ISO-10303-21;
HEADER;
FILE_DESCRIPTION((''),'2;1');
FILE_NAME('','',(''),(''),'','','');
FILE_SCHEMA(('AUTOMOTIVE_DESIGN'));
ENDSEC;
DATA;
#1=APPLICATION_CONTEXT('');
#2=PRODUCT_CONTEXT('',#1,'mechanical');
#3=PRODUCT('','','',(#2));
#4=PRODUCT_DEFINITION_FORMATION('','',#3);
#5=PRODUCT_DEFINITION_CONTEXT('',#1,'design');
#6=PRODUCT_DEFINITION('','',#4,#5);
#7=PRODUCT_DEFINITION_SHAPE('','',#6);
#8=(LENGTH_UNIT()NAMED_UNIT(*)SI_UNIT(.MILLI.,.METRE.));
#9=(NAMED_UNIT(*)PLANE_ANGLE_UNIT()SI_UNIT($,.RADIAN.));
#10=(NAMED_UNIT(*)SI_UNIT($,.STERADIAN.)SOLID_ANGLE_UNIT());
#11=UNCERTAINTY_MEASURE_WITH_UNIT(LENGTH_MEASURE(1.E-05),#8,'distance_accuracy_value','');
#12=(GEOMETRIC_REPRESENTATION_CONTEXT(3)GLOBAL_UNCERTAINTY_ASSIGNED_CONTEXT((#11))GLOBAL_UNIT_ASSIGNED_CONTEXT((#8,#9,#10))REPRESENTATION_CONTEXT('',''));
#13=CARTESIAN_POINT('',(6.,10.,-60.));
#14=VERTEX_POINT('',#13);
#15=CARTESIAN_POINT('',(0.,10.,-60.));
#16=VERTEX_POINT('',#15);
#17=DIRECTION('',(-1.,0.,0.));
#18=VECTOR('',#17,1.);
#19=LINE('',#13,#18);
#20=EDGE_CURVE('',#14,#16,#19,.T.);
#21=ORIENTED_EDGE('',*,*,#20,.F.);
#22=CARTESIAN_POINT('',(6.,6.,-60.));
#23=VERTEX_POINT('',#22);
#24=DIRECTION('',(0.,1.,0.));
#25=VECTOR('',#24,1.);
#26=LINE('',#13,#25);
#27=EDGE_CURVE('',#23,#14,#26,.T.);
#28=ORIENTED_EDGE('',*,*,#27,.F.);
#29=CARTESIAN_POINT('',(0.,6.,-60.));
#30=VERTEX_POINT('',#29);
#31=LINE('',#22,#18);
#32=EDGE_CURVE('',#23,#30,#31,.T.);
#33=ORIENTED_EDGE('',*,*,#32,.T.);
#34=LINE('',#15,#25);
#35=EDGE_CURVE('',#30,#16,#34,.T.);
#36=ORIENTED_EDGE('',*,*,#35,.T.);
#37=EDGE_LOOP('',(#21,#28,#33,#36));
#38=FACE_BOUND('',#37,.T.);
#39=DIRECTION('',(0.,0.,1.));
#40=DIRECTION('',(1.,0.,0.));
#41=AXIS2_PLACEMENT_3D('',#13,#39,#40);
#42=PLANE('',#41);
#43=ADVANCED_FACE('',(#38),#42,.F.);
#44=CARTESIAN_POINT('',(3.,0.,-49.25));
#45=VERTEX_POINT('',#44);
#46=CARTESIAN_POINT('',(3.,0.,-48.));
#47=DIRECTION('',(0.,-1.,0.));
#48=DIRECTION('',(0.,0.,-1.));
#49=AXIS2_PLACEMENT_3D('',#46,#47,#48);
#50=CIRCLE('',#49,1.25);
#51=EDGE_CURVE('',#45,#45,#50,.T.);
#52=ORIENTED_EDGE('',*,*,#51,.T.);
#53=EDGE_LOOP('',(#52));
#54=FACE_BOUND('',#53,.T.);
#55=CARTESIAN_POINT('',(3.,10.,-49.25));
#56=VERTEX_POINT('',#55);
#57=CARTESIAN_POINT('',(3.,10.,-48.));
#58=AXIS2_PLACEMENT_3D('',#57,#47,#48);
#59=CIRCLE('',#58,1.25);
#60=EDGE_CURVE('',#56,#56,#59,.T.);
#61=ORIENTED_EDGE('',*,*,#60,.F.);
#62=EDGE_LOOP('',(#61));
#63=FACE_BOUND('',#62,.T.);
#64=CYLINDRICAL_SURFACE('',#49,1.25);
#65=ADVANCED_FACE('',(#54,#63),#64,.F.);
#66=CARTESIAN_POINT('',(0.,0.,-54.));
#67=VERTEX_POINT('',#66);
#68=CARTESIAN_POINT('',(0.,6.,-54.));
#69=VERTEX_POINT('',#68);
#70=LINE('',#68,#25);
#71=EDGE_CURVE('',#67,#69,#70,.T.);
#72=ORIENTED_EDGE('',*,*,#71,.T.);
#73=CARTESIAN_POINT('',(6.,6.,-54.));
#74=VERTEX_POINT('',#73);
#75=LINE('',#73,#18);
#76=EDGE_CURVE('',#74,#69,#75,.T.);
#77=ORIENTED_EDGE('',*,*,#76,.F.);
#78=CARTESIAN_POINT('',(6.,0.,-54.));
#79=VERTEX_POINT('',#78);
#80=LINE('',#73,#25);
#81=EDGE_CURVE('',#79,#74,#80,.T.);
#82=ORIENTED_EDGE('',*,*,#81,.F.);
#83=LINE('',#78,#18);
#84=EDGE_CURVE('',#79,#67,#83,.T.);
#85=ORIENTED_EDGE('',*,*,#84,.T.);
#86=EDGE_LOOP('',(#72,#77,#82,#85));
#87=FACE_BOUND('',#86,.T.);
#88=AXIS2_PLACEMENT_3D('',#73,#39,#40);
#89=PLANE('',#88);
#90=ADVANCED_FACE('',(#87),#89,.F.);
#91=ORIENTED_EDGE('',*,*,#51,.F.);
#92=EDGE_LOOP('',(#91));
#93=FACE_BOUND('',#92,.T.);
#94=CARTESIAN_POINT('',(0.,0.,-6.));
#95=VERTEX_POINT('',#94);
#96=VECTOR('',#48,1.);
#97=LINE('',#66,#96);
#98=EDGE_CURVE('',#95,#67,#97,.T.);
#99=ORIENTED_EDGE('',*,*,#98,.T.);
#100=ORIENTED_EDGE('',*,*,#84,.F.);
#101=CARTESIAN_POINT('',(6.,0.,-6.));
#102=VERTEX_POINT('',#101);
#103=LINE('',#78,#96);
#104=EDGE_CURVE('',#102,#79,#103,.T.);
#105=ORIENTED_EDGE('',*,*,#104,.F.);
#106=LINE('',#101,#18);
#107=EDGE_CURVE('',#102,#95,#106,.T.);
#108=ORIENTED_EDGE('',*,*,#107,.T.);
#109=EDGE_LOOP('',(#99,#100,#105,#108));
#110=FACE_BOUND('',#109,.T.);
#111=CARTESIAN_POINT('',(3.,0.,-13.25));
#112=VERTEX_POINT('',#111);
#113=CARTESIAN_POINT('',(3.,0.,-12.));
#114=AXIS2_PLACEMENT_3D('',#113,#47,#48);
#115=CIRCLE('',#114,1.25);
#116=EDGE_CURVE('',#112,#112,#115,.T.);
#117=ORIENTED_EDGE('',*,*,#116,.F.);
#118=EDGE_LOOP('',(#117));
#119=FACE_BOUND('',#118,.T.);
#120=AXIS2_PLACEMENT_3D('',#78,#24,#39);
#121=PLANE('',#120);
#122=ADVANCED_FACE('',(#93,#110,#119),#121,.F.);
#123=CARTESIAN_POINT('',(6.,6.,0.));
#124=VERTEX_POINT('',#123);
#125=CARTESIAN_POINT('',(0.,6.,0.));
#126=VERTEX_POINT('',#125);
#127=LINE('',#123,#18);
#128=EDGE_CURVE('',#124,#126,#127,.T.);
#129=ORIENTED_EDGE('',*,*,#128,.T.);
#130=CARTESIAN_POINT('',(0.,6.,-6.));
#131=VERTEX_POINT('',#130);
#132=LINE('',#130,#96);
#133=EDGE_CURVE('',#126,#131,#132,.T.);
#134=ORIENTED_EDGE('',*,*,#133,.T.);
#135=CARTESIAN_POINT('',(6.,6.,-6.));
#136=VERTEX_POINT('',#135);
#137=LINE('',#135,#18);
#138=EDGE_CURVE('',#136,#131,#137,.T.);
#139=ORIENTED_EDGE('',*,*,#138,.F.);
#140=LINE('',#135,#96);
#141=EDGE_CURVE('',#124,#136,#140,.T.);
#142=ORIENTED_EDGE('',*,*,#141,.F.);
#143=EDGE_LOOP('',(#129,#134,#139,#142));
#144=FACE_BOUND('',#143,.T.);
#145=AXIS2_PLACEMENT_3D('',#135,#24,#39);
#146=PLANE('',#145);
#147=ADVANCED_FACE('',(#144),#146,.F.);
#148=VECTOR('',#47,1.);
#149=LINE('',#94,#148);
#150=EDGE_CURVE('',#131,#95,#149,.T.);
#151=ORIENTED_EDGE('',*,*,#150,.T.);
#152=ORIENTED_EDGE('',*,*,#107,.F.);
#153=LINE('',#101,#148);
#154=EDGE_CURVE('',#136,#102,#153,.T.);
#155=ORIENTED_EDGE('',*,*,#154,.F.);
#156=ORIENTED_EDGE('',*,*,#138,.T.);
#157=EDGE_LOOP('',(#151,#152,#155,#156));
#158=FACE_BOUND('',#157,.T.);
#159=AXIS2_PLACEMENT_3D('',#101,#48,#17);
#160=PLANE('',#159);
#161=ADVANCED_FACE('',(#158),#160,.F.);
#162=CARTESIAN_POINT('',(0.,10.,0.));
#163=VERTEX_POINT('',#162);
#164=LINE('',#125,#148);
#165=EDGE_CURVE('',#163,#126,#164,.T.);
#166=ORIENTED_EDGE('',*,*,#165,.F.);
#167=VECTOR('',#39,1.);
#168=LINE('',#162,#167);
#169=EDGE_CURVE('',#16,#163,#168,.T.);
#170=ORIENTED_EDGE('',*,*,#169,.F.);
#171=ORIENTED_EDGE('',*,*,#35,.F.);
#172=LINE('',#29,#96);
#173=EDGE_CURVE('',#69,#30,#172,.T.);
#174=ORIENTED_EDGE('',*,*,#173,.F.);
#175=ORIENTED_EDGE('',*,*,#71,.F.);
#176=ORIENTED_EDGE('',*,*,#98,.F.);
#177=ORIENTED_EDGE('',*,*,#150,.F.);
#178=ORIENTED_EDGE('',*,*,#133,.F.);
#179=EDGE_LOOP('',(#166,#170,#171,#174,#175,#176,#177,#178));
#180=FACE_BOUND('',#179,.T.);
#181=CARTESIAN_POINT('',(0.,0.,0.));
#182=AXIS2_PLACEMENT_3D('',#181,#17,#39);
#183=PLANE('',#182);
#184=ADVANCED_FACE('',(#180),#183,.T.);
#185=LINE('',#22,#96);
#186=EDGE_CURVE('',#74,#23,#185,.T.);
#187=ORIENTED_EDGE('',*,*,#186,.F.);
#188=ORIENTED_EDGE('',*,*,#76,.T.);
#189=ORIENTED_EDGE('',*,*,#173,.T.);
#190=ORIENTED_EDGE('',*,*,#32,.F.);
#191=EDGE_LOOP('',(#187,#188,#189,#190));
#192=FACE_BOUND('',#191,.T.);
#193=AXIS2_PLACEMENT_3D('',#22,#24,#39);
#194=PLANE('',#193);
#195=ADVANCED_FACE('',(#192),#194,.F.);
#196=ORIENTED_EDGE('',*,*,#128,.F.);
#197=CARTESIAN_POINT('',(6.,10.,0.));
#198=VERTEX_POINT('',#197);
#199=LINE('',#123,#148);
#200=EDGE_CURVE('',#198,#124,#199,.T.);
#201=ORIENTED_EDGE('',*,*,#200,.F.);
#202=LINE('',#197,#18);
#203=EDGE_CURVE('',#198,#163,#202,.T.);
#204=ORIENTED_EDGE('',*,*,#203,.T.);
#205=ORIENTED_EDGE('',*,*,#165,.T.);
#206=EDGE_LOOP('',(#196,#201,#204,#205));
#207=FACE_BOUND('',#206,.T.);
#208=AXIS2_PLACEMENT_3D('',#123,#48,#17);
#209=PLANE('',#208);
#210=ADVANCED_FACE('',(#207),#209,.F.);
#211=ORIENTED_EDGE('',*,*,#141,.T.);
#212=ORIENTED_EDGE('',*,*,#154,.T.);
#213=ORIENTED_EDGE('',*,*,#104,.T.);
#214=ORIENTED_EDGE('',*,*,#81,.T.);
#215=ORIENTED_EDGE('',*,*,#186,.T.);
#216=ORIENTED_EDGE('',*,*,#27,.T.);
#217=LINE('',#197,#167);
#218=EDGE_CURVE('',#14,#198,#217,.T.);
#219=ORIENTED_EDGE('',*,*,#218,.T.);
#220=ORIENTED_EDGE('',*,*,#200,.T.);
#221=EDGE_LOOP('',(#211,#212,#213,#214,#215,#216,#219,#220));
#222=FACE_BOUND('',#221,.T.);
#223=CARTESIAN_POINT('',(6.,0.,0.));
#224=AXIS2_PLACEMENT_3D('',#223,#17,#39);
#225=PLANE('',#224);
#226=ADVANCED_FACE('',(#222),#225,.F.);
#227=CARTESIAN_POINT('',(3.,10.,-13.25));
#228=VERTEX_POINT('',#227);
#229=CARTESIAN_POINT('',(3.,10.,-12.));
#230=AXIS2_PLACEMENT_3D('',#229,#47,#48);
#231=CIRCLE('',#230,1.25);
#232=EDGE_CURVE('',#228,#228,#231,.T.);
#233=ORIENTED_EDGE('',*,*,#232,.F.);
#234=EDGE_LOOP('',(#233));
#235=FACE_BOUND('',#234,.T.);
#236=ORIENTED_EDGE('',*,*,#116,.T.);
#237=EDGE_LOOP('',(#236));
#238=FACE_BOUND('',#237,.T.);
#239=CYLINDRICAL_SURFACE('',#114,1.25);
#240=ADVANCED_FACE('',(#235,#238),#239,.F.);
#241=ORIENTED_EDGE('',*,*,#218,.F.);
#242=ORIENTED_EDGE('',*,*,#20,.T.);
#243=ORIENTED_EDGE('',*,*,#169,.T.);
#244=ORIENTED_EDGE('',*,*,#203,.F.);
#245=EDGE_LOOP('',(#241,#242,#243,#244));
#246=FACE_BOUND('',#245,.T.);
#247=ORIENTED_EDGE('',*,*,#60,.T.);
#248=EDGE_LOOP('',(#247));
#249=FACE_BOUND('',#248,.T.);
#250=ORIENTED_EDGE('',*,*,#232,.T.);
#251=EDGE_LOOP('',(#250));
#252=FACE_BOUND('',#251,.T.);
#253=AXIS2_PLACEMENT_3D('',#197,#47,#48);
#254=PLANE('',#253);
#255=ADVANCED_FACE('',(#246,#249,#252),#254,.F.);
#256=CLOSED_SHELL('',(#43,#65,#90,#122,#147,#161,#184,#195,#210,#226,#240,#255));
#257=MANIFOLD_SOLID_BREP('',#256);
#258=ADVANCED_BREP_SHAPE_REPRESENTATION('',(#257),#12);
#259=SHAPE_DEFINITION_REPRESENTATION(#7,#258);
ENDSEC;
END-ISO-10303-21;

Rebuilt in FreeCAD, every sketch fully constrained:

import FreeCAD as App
import Part
import Sketcher


def add_polygon(sketch, points):
    """Adds a closed chain of lines whose ends are joined by coincident constraints."""
    first, n = sketch.GeometryCount, len(points)
    for a, b in zip(points, points[1:] + points[:1]):
        sketch.addGeometry(Part.LineSegment(App.Vector(*a, 0), App.Vector(*b, 0)), False)
    for i in range(n):
        sketch.addConstraint(Sketcher.Constraint("Coincident", first + i, 2, first + (i + 1) % n, 1))

doc = App.newDocument("Part")
body = doc.addObject("PartDesign::Body", "Body")

# Sketch on YZ plane
sketch1 = body.newObject("Sketcher::SketchObject", "Sketch")
sketch1.AttachmentSupport = (doc.getObject("YZ_Plane"), [""])
sketch1.MapMode = "FlatFace"
add_polygon(sketch1, [(10, 0), (6, 0), (6, -6), (0, -6), (0, -54), (6, -54), (6, -60), (10, -60)])  # lines 0-7
sketch1.addConstraint([
    Sketcher.Constraint("Horizontal", 0),
    Sketcher.Constraint("Vertical", 1),
    Sketcher.Constraint("Horizontal", 2),
    Sketcher.Constraint("Vertical", 3),
    Sketcher.Constraint("Horizontal", 4),
    Sketcher.Constraint("Vertical", 5),
    Sketcher.Constraint("Horizontal", 6),
    Sketcher.Constraint("Vertical", 7),
    Sketcher.Constraint("PointOnObject", 0, 2, -1),
    Sketcher.Constraint("PointOnObject", 2, 2, -2),
    Sketcher.Constraint("Vertical", 1, 2, 4, 2),
    Sketcher.Constraint("Equal", 4, 1),
    Sketcher.Constraint("Equal", 1, 5),
    Sketcher.Constraint("DistanceX", 0, 2, 0, 1, 4.0),
    Sketcher.Constraint("DistanceX", 2, 2, 2, 1, 6.0),
    Sketcher.Constraint("DistanceY", 3, 2, 3, 1, 48.0),
])
pad1 = body.newObject("PartDesign::Pad", "Pad")
pad1.Profile = sketch1
pad1.Length = 6

# Sketch on XZ plane
sketch2 = body.newObject("Sketcher::SketchObject", "Sketch001")
sketch2.AttachmentSupport = (doc.getObject("XZ_Plane"), [""])
sketch2.MapMode = "FlatFace"
sketch2.addGeometry([
    Part.Circle(App.Vector(3, -12, 0), App.Vector(0, 0, 1), 1.2),
    Part.Circle(App.Vector(3, -48, 0), App.Vector(0, 0, 1), 1.2),
], False)
sketch2.addConstraint([
    Sketcher.Constraint("Equal", 0, 1),
    Sketcher.Constraint("Vertical", 0, 3, 1, 3),
    Sketcher.Constraint("Diameter", 0, 2.5),
    Sketcher.Constraint("DistanceX", -1, 1, 0, 3, 3.0),
    Sketcher.Constraint("DistanceY", 0, 3, -1, 1, 12.0),
    Sketcher.Constraint("DistanceY", 1, 3, -1, 1, 48.0),
])
doc.recompute()
hole = body.newObject("PartDesign::Hole", "Hole")
hole.Profile = sketch2
hole.ThreadType = "None"
hole.Diameter = 2.5
hole.DepthType = "ThroughAll"

doc.recompute()
